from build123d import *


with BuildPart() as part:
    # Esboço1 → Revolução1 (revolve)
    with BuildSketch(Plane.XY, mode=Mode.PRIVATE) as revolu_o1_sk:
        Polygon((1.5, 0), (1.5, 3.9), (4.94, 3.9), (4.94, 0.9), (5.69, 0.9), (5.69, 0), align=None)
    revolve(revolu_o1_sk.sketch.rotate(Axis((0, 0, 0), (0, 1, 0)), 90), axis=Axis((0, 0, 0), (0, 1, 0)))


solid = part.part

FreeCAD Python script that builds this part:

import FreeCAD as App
import Part
import Sketcher
from FreeCAD import Vector

doc = App.newDocument("Part")
body = doc.addObject("PartDesign::Body", "Body")

# Sketch on XY plane
sketch1 = body.newObject("Sketcher::SketchObject", "Sketch")
sketch1.AttachmentSupport = (doc.getObject("XY_Plane"), [""])
sketch1.MapMode = "FlatFace"
sketch1.addGeometry([
    Part.LineSegment(Vector(1.5, 3.9, 0), Vector(1.5, 0, 0)),  # 0
    Part.LineSegment(Vector(1.5, 0, 0), Vector(5.7, 0, 0)),  # 1
    Part.LineSegment(Vector(5.7, 0, 0), Vector(5.7, 0.9, 0)),  # 2
    Part.LineSegment(Vector(5.7, 0.9, 0), Vector(4.9, 0.9, 0)),  # 3
    Part.LineSegment(Vector(4.9, 0.9, 0), Vector(4.9, 3.9, 0)),  # 4
    Part.LineSegment(Vector(4.9, 3.9, 0), Vector(1.5, 3.9, 0)),  # 5
], False)
sketch1.addConstraint([
    Sketcher.Constraint("Coincident", 0, 2, 1, 1),
    Sketcher.Constraint("Coincident", 1, 2, 2, 1),
    Sketcher.Constraint("Coincident", 2, 2, 3, 1),
    Sketcher.Constraint("Coincident", 3, 2, 4, 1),
    Sketcher.Constraint("Coincident", 4, 2, 5, 1),
    Sketcher.Constraint("Coincident", 5, 2, 0, 1),
    Sketcher.Constraint("Vertical", 0),
    Sketcher.Constraint("Horizontal", 1),
    Sketcher.Constraint("Vertical", 2),
    Sketcher.Constraint("Horizontal", 3),
    Sketcher.Constraint("Vertical", 4),
    Sketcher.Constraint("Horizontal", 5),
    Sketcher.Constraint("PointOnObject", 0, 2, -1),
    Sketcher.Constraint("DistanceY", 4, 1, 4, 2, 3.0),
    Sketcher.Constraint("DistanceY", 0, 2, 0, 1, 3.9),
    Sketcher.Constraint("DistanceX", 1, 1, 1, 2, 4.19),
    Sketcher.Constraint("DistanceX", 3, 2, 3, 1, 0.75),
    Sketcher.Constraint("DistanceX", -1, 1, 0, 2, 1.5),
])
revolution = body.newObject("PartDesign::Revolution", "Revolution")
revolution.Profile = sketch1
revolution.ReferenceAxis = (sketch1, ["V_Axis"])
revolution.Angle = 360

doc.recompute()
